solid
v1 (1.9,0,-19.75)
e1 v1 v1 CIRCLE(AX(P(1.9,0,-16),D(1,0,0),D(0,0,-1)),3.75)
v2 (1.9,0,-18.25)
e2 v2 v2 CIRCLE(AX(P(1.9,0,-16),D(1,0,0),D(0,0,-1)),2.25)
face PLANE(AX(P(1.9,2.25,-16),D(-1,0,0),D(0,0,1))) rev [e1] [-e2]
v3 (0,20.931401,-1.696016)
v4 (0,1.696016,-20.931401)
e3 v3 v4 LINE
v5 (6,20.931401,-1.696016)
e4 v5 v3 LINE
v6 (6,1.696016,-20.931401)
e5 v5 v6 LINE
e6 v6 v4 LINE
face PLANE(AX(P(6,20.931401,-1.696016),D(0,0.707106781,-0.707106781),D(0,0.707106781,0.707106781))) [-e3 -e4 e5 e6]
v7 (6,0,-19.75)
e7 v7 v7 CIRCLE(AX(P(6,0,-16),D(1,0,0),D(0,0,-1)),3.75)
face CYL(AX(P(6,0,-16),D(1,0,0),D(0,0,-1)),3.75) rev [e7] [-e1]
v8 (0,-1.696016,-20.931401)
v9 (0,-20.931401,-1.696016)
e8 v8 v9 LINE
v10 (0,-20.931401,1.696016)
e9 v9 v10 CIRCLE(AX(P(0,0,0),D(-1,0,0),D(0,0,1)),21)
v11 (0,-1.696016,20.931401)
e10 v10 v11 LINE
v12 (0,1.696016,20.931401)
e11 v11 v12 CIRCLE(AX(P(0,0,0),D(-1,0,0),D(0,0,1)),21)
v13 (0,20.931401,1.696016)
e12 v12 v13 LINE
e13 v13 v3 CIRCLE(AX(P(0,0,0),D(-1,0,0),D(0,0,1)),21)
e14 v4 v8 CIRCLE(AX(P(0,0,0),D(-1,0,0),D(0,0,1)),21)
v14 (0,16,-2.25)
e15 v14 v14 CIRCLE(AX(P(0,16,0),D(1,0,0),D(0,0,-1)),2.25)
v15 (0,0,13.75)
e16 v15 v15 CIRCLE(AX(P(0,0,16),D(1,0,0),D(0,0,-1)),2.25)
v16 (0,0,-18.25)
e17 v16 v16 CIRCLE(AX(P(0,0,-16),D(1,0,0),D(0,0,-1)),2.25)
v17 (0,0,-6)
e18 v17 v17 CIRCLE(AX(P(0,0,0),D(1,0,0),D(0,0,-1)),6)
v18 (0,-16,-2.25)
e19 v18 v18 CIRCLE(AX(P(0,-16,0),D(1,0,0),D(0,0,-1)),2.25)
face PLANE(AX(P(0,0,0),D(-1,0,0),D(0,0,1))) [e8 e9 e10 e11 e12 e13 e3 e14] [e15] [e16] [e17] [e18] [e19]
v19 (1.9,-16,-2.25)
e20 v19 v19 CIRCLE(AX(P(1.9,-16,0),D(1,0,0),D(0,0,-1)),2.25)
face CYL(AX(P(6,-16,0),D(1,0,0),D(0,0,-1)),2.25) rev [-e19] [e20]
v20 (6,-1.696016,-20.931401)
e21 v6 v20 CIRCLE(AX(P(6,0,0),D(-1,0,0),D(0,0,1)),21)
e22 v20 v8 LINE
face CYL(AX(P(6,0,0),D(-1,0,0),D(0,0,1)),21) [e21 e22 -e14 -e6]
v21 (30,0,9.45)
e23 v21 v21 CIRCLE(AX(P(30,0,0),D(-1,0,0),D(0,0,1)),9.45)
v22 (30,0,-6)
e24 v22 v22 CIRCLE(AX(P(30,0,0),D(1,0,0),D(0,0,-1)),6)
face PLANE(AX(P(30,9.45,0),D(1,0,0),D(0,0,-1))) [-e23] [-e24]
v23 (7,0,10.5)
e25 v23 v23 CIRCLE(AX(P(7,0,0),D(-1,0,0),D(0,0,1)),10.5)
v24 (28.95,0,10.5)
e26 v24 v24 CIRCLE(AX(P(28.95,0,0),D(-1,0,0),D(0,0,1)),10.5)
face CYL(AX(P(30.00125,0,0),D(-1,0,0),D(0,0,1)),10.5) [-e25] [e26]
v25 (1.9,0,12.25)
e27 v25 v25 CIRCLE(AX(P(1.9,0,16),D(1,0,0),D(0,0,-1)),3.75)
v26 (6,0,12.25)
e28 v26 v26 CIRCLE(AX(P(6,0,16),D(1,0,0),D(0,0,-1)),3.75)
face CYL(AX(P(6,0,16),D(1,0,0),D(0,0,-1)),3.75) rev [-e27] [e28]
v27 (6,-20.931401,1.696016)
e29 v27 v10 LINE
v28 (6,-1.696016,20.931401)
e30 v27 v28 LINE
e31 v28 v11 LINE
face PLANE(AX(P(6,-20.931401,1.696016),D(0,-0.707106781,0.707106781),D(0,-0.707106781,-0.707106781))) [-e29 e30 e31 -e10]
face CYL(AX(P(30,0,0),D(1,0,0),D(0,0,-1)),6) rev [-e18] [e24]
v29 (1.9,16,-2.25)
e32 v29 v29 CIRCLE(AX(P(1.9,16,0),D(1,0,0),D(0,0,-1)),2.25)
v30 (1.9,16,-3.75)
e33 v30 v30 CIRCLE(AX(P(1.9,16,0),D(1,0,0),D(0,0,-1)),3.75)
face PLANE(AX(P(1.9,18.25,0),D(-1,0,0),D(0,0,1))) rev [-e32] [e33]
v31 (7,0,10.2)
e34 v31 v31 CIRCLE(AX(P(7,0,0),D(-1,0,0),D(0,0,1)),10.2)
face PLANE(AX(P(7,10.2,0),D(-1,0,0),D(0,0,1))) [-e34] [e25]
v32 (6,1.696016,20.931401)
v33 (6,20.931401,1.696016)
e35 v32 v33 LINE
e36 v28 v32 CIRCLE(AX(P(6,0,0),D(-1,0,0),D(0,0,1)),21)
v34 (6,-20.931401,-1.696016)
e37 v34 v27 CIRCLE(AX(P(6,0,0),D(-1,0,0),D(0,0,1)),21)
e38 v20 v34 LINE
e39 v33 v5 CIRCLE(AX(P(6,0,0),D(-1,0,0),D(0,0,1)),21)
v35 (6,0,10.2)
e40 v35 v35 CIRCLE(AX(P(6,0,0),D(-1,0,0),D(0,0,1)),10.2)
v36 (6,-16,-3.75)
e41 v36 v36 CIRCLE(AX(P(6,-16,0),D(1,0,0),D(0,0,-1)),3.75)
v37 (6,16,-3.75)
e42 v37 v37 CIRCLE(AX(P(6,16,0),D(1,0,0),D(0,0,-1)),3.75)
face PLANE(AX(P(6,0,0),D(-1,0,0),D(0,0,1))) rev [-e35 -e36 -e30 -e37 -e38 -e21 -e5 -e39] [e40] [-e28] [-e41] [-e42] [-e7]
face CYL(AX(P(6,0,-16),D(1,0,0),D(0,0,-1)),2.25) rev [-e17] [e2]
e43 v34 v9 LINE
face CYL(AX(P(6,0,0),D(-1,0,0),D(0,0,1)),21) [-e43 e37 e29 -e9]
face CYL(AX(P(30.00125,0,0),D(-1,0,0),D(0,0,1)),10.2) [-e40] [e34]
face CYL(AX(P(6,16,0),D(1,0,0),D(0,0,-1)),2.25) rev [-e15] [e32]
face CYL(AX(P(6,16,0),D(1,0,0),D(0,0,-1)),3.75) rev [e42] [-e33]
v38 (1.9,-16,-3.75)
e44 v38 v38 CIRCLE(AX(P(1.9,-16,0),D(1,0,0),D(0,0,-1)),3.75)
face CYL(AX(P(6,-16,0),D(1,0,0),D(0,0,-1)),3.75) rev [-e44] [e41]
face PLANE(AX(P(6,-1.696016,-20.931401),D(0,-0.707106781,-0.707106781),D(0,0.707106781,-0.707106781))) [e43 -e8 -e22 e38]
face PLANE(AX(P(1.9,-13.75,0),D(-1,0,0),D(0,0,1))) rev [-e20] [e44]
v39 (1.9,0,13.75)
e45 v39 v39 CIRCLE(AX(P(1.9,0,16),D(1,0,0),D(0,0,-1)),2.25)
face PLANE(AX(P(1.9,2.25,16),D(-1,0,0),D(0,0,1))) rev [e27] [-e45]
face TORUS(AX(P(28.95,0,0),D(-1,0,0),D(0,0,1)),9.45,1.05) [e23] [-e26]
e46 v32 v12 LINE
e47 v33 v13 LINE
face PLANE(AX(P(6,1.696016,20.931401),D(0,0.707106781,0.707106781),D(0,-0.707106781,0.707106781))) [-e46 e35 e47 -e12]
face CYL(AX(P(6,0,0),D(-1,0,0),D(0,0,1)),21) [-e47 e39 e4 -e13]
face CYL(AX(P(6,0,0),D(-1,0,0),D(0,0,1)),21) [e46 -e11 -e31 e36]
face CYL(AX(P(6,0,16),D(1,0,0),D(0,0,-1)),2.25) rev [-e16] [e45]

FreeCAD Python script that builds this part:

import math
import FreeCAD as App
import Part
import Sketcher
from FreeCAD import Vector

doc = App.newDocument("Part")
params = doc.addObject("Spreadsheet::Sheet", "Params")
for row, (alias, value) in enumerate([
    ("sketch1_radius", "21 mm"),
    ("pad1_length", "6 mm"),
    ("sketch2_width", "24 mm"),
    ("sketch2_width2", "1 mm"),
    ("sketch2_radius", "1.05 mm"),
    ("sketch2_height", "10.2 mm"),
    ("sketch2_height2", "0.3 mm"),
    ("revolution_angle", "360 deg"),
    ("sketch3_diameter", "4.5 mm"),
    ("hole_diameter", "4.5 mm"),
    ("hole_depth", "6 mm"),
    ("hole_cbore_diameter", "7.5 mm"),
    ("hole_cbore_depth", "4.1 mm"),
    ("sketch4_diameter", "12 mm"),
    ("hole2_diameter", "12 mm"),
    ("hole2_depth", "30 mm"),
], start=1):
    params.set(f"A{row}", alias)
    params.set(f"B{row}", "=" + value)
    params.setAlias(f"B{row}", alias)

body = doc.addObject("PartDesign::Body", "Body")

# Sketch on YZ plane
sketch1 = body.newObject("Sketcher::SketchObject", "Sketch")
sketch1.AttachmentSupport = (doc.getObject("YZ_Plane"), [""])
sketch1.MapMode = "FlatFace"
sketch1.addGeometry([
    Part.LineSegment(Vector(1.696016, 20.931401, 0), Vector(20.931401, 1.696016, 0)),  # 0
    Part.ArcOfCircle(Part.Circle(Vector(0, 0, 0), Vector(0, 0, 1), 21), math.radians(-4.632406), math.radians(4.632406)),  # 1
    Part.LineSegment(Vector(20.931401, -1.696016, 0), Vector(1.696016, -20.931401, 0)),  # 2
    Part.ArcOfCircle(Part.Circle(Vector(0, 0, 0), Vector(0, 0, 1), 21), math.radians(-94.632406), math.radians(-85.367594)),  # 3
    Part.LineSegment(Vector(-1.696016, -20.931401, 0), Vector(-20.931401, -1.696016, 0)),  # 4
    Part.ArcOfCircle(Part.Circle(Vector(0, 0, 0), Vector(0, 0, 1), 21), math.radians(175.367594), math.radians(184.632406)),  # 5
    Part.LineSegment(Vector(-20.931401, 1.696016, 0), Vector(-1.696016, 20.931401, 0)),  # 6
    Part.ArcOfCircle(Part.Circle(Vector(0, 0, 0), Vector(0, 0, 1), 21), math.radians(85.367594), math.radians(94.632406)),  # 7
], False)
sketch1.addConstraint([
    Sketcher.Constraint("Coincident", 0, 2, 1, 2),
    Sketcher.Constraint("Coincident", 1, 1, 2, 1),
    Sketcher.Constraint("Coincident", 2, 2, 3, 2),
    Sketcher.Constraint("Coincident", 3, 1, 4, 1),
    Sketcher.Constraint("Coincident", 4, 2, 5, 2),
    Sketcher.Constraint("Coincident", 5, 1, 6, 1),
    Sketcher.Constraint("Coincident", 6, 2, 7, 2),
    Sketcher.Constraint("Coincident", 7, 1, 0, 1),
    Sketcher.Constraint("Coincident", 1, 3, -1, 1),
    Sketcher.Constraint("Coincident", 3, 3, -1, 1),
    Sketcher.Constraint("Coincident", 5, 3, -1, 1),
    Sketcher.Constraint("Coincident", 7, 3, -1, 1),
    Sketcher.Constraint("Equal", 1, 3),
    Sketcher.Constraint("Equal", 3, 5),
    Sketcher.Constraint("Equal", 5, 7),
    Sketcher.Constraint("Perpendicular", 0, 2),
    Sketcher.Constraint("Perpendicular", 2, 4),
    Sketcher.Constraint("Perpendicular", 4, 6),
    Sketcher.Constraint("Horizontal", 2, 2, 3, 1),
    Sketcher.Constraint("Horizontal", 1, 1, 4, 2),
    Sketcher.Constraint("Horizontal", 0, 2, 5, 1),
    Sketcher.Constraint("Vertical", 0, 2, 1, 1),
    Sketcher.Constraint("Radius", 1, 21.0),
    Sketcher.Constraint("DistanceX", -1, 1, 0, 2, 20.931401),
])
sketch1.setExpression("Constraints[22]", "Params.sketch1_radius")
pad1 = body.newObject("PartDesign::Pad", "Pad")
pad1.Profile = sketch1
pad1.setExpression("Length", "Params.pad1_length")

# Sketch on XY plane
sketch2 = body.newObject("Sketcher::SketchObject", "Sketch001")
sketch2.AttachmentSupport = (doc.getObject("XY_Plane"), [""])
sketch2.MapMode = "FlatFace"
sketch2.addGeometry([
    Part.LineSegment(Vector(30, 9.45, 0), Vector(30, 0, 0)),  # 0
    Part.LineSegment(Vector(30, 0, 0), Vector(6, 0, 0)),  # 1
    Part.LineSegment(Vector(6, 0, 0), Vector(6, 10.2, 0)),  # 2
    Part.LineSegment(Vector(6, 10.2, 0), Vector(7, 10.2, 0)),  # 3
    Part.LineSegment(Vector(7, 10.2, 0), Vector(7, 10.5, 0)),  # 4
    Part.LineSegment(Vector(7, 10.5, 0), Vector(28.95, 10.5, 0)),  # 5
    Part.ArcOfCircle(Part.Circle(Vector(28.95, 9.45, 0), Vector(0, 0, 1), 1.05), math.radians(0), math.radians(90)),  # 6
], False)
sketch2.addConstraint([
    Sketcher.Constraint("Coincident", 0, 2, 1, 1),
    Sketcher.Constraint("Coincident", 1, 2, 2, 1),
    Sketcher.Constraint("Coincident", 2, 2, 3, 1),
    Sketcher.Constraint("Coincident", 3, 2, 4, 1),
    Sketcher.Constraint("Coincident", 4, 2, 5, 1),
    Sketcher.Constraint("Tangent", 5, 2, 6, 2),
    Sketcher.Constraint("Tangent", 6, 1, 0, 1),
    Sketcher.Constraint("Vertical", 0),
    Sketcher.Constraint("Horizontal", 1),
    Sketcher.Constraint("Vertical", 2),
    Sketcher.Constraint("Horizontal", 3),
    Sketcher.Constraint("Vertical", 4),
    Sketcher.Constraint("Horizontal", 5),
    Sketcher.Constraint("PointOnObject", 0, 2, -1),
    Sketcher.Constraint("DistanceX", 1, 2, 1, 1, 24.0),
    Sketcher.Constraint("DistanceX", 3, 1, 3, 2, 1.0),
    Sketcher.Constraint("Radius", 6, 1.05),
    Sketcher.Constraint("DistanceY", 2, 1, 2, 2, 10.2),
    Sketcher.Constraint("DistanceY", 4, 1, 4, 2, 0.3),
    Sketcher.Constraint("DistanceX", -1, 1, 0, 2, 30.0),
])
sketch2.setExpression("Constraints[14]", "Params.sketch2_width")
sketch2.setExpression("Constraints[15]", "Params.sketch2_width2")
sketch2.setExpression("Constraints[16]", "Params.sketch2_radius")
sketch2.setExpression("Constraints[17]", "Params.sketch2_height")
sketch2.setExpression("Constraints[18]", "Params.sketch2_height2")
revolution = body.newObject("PartDesign::Revolution", "Revolution")
revolution.Profile = sketch2
revolution.ReferenceAxis = (sketch2, ["H_Axis"])
revolution.setExpression("Angle", "Params.revolution_angle")

# Sketch on YZ plane
sketch3 = body.newObject("Sketcher::SketchObject", "Sketch002")
sketch3.AttachmentSupport = (doc.getObject("YZ_Plane"), [""])
sketch3.MapMode = "FlatFace"
sketch3.AttachmentOffset = App.Placement(Vector(0, 0, 6), App.Rotation())
sketch3.addGeometry([
    Part.Circle(Vector(-16, 0, 0), Vector(0, 0, 1), 2.25),
    Part.Circle(Vector(0, -16, 0), Vector(0, 0, 1), 2.25),
    Part.Circle(Vector(0, 16, 0), Vector(0, 0, 1), 2.25),
    Part.Circle(Vector(16, 0, 0), Vector(0, 0, 1), 2.25),
], False)
sketch3.addConstraint([
    Sketcher.Constraint("Equal", 0, 1),
    Sketcher.Constraint("Equal", 1, 2),
    Sketcher.Constraint("Equal", 2, 3),
    Sketcher.Constraint("Symmetric", 1, 3, 2, 3, -1, 1),
    Sketcher.Constraint("Symmetric", 0, 3, 3, 3, -1, 1),
    Sketcher.Constraint("PointOnObject", 0, 3, -1),
    Sketcher.Constraint("PointOnObject", 1, 3, -2),
    Sketcher.Constraint("Diameter", 0, 4.5),
    Sketcher.Constraint("DistanceX", 0, 3, -1, 1, 16.0),
    Sketcher.Constraint("DistanceY", 1, 3, -1, 1, 16.0),
])
sketch3.setExpression("Constraints[7]", "Params.sketch3_diameter")
doc.recompute()
hole = body.newObject("PartDesign::Hole", "Hole")
hole.Profile = sketch3
hole.ThreadType = "None"
hole.setExpression("Diameter", "Params.hole_diameter")
hole.DepthType = "Dimension"
hole.setExpression("Depth", "Params.hole_depth")
hole.DrillPoint = "Flat"
hole.HoleCutType = "Counterbore"
hole.setExpression("HoleCutDiameter", "Params.hole_cbore_diameter")
hole.setExpression("HoleCutDepth", "Params.hole_cbore_depth")

# Sketch on YZ plane
sketch4 = body.newObject("Sketcher::SketchObject", "Sketch003")
sketch4.AttachmentSupport = (doc.getObject("YZ_Plane"), [""])
sketch4.MapMode = "FlatFace"
sketch4.AttachmentOffset = App.Placement(Vector(0, 0, 30), App.Rotation())
sketch4.addGeometry(Part.Circle(Vector(0, 0, 0), Vector(0, 0, 1), 6), False)
sketch4.addConstraint([
    Sketcher.Constraint("Coincident", 0, 3, -1, 1),
    Sketcher.Constraint("Diameter", 0, 12.0),
])
sketch4.setExpression("Constraints[1]", "Params.sketch4_diameter")
doc.recompute()
hole2 = body.newObject("PartDesign::Hole", "Hole001")
hole2.Profile = sketch4
hole2.ThreadType = "None"
hole2.setExpression("Diameter", "Params.hole2_diameter")
hole2.DepthType = "Dimension"
hole2.setExpression("Depth", "Params.hole2_depth")
hole2.DrillPoint = "Flat"

doc.recompute()
